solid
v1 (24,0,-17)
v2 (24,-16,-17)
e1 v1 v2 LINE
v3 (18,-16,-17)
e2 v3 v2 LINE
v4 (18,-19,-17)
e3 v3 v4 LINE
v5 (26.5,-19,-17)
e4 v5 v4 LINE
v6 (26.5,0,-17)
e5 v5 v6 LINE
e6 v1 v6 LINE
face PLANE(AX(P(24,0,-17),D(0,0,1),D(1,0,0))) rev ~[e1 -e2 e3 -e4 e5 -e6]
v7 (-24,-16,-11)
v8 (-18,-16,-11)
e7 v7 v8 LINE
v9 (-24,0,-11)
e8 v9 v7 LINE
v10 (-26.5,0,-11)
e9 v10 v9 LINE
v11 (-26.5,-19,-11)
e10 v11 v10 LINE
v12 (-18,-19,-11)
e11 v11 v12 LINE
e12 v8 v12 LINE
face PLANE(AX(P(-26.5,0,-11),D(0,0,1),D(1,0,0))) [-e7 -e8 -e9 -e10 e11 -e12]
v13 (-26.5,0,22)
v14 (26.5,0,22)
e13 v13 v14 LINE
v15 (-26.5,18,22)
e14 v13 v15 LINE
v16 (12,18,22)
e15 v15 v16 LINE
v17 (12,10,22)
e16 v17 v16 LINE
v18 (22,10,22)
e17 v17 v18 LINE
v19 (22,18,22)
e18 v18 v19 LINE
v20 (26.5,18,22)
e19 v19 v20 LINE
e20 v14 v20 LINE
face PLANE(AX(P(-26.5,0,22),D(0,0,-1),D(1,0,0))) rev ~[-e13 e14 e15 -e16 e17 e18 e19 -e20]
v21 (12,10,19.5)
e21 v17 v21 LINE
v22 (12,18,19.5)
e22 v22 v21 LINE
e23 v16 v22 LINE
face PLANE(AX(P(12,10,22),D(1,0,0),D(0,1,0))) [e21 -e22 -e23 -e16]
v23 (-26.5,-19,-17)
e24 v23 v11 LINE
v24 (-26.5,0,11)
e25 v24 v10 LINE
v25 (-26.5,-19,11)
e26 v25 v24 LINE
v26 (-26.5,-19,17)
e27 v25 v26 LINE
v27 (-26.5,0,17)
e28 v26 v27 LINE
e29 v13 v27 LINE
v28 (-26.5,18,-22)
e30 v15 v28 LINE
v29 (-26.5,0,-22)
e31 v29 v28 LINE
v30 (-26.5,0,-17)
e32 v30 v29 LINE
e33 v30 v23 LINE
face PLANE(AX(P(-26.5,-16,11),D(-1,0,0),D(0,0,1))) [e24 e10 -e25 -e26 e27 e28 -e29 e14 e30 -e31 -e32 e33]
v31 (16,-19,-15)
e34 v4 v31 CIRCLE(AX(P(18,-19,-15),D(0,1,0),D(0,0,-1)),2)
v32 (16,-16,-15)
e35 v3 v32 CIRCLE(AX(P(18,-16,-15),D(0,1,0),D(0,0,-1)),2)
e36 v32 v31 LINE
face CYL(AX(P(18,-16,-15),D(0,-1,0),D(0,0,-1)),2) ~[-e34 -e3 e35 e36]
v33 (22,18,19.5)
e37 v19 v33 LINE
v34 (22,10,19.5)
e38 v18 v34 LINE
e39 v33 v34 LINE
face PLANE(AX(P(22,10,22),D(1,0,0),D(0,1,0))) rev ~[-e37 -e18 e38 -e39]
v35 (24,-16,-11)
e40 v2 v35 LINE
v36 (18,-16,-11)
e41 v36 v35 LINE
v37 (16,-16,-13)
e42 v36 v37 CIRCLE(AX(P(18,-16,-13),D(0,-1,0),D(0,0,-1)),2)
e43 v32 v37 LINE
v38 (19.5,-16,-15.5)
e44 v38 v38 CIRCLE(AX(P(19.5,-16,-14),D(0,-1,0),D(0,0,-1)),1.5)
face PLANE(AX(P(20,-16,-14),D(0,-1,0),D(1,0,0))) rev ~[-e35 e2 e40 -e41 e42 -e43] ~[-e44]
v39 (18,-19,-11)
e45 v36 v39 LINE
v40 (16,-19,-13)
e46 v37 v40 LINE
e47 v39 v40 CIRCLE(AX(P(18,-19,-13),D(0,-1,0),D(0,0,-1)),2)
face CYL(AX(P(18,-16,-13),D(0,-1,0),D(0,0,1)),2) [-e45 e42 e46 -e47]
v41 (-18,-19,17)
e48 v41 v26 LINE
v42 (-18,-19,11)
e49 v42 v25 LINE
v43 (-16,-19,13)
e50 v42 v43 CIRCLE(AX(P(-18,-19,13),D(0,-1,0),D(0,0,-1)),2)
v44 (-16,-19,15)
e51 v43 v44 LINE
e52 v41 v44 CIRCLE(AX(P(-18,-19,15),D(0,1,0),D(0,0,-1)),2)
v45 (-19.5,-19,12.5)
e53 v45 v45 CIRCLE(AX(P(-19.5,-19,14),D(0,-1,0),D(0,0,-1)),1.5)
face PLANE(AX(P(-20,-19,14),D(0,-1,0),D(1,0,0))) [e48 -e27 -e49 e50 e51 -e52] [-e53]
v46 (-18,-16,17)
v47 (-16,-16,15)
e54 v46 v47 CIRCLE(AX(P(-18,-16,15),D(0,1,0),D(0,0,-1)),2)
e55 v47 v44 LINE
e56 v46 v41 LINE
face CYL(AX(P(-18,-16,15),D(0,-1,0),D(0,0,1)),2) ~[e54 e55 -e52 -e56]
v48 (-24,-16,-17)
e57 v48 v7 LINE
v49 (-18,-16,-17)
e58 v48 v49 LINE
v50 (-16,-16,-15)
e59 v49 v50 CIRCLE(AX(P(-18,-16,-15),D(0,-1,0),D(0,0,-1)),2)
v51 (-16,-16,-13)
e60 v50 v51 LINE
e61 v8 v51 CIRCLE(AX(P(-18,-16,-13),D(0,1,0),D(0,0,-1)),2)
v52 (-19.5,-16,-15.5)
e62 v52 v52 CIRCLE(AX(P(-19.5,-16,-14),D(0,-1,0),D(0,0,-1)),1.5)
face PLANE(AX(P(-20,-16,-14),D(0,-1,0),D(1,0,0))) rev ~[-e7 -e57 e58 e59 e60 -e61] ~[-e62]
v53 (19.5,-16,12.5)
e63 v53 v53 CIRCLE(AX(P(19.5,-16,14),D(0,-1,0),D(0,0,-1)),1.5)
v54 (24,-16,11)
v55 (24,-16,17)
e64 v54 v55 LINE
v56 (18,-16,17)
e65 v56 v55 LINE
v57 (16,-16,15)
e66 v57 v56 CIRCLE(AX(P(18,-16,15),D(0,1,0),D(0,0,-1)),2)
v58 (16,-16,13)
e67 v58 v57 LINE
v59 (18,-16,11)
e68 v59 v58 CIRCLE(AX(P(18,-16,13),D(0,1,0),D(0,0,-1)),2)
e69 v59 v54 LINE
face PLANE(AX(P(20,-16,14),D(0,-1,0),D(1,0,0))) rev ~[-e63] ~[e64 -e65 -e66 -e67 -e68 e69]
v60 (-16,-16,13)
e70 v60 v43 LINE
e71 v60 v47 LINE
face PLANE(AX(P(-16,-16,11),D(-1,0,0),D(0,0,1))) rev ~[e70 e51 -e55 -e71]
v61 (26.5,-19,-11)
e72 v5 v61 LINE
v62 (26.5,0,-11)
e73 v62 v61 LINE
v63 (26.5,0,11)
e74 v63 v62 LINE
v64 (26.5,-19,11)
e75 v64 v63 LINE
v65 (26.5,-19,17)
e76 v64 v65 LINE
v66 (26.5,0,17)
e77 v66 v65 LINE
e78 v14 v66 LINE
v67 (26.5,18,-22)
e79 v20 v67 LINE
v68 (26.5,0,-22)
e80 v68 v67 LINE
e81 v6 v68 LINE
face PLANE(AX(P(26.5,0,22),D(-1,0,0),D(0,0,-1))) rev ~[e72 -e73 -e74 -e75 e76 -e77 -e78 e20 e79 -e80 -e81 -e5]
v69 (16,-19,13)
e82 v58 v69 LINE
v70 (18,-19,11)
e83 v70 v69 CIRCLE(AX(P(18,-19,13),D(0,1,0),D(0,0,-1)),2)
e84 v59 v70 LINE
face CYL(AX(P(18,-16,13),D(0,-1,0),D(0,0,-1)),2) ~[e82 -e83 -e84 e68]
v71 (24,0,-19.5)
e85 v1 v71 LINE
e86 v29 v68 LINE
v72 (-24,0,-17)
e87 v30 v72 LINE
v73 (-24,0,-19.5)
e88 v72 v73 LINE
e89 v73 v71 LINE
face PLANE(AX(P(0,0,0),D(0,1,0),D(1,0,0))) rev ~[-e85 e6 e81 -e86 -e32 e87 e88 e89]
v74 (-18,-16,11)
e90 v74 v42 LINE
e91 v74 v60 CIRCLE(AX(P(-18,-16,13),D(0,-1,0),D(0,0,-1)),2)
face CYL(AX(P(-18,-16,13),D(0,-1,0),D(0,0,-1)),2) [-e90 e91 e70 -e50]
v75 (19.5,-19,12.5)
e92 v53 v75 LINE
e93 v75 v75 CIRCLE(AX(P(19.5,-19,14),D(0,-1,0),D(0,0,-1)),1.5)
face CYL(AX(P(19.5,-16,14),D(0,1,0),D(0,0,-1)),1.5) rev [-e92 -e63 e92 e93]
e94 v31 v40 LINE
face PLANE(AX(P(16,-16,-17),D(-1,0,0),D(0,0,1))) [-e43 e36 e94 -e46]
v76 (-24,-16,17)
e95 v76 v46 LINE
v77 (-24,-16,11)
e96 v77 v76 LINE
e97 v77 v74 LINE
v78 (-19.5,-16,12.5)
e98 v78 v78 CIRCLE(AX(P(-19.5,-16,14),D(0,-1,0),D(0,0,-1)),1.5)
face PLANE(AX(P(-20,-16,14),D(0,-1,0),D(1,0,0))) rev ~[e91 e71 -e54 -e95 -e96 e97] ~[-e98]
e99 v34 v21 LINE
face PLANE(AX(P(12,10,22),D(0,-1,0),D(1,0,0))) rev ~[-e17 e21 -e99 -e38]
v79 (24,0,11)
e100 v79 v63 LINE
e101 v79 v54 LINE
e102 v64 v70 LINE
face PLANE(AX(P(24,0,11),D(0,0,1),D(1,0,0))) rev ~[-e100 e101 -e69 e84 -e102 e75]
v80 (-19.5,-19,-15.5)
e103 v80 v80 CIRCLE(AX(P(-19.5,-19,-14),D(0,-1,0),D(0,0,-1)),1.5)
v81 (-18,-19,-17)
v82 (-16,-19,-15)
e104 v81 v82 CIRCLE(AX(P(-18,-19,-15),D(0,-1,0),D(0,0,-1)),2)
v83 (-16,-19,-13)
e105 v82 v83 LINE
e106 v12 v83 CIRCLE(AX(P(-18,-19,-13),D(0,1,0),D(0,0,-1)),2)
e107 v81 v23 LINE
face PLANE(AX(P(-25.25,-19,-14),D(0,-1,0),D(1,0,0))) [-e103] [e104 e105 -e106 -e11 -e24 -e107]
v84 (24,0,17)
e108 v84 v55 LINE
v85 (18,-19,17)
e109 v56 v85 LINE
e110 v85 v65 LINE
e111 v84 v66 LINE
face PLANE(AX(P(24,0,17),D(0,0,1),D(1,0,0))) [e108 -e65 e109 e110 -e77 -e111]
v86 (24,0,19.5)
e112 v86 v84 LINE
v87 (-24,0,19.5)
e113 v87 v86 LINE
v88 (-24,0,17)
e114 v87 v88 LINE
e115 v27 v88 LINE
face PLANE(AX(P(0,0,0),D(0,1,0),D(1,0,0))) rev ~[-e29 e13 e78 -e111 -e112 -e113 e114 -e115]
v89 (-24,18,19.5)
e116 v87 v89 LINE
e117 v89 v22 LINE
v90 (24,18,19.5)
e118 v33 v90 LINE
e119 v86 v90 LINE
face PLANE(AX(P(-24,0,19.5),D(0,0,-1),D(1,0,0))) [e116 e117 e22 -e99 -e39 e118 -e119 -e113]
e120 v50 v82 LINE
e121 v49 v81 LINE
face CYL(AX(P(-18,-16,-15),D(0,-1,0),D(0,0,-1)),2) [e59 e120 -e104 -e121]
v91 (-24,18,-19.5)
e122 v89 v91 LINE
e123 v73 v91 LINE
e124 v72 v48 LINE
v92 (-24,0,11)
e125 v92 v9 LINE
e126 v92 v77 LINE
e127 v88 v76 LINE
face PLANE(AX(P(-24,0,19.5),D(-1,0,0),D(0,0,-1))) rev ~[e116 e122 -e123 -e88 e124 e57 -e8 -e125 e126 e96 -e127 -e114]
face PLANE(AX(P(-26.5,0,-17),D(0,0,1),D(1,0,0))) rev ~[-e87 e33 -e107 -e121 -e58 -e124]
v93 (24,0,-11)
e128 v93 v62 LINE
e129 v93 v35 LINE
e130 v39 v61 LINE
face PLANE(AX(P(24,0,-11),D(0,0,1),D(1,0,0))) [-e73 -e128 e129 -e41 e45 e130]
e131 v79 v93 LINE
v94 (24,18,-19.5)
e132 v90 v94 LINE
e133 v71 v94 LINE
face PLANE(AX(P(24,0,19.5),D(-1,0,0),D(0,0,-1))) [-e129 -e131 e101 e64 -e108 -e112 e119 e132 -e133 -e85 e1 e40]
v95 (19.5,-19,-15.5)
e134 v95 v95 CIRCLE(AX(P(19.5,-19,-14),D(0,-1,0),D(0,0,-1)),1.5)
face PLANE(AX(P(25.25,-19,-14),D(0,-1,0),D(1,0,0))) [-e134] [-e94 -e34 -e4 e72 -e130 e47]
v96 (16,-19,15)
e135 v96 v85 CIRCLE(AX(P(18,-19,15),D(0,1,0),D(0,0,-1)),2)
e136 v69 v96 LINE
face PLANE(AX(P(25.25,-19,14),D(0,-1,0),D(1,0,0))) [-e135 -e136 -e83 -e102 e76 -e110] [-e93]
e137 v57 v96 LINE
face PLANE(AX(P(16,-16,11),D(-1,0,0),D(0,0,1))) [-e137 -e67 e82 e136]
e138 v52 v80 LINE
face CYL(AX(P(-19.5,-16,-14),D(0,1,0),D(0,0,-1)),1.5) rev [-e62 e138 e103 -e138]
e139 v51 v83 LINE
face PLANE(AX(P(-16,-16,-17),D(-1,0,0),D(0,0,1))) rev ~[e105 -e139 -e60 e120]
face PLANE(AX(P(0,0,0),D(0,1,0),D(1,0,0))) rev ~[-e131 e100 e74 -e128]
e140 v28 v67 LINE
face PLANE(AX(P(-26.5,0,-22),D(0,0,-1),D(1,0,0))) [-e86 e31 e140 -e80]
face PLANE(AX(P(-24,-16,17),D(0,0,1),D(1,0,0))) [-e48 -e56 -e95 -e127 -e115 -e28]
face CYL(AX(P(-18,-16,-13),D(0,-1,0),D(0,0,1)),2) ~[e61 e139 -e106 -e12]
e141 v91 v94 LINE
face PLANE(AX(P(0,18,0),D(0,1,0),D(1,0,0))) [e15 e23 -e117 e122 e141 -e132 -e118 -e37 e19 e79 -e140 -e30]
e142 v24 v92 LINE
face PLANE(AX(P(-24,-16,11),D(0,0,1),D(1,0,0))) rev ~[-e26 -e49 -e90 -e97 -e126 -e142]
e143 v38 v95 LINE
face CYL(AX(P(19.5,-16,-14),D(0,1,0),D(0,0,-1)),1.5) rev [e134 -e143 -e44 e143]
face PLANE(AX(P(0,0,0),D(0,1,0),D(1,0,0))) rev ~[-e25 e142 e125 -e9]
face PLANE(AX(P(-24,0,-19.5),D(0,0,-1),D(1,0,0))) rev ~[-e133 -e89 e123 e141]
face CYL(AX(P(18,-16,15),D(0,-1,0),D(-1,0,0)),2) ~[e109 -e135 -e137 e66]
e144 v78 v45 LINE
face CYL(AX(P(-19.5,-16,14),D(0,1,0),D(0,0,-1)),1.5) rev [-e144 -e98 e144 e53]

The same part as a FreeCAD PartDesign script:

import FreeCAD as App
import Part
import Sketcher
from FreeCAD import Vector
Q = App.Units.Quantity


def edges_at(feature, points):
    """Names of the edges that pass closest to the given points."""
    edges = feature.Shape.Edges
    near = lambda p: min(range(len(edges)), key=lambda i: edges[i].distToShape(Part.Vertex(*p))[0])
    return sorted({f"Edge{near(p) + 1}" for p in points})


def add_polygon(sketch, points):
    """Adds a closed chain of lines whose ends are joined by coincident constraints."""
    first, n = sketch.GeometryCount, len(points)
    for a, b in zip(points, points[1:] + points[:1]):
        sketch.addGeometry(Part.LineSegment(App.Vector(*a, 0), App.Vector(*b, 0)), False)
    for i in range(n):
        sketch.addConstraint(Sketcher.Constraint("Coincident", first + i, 2, first + (i + 1) % n, 1))

doc = App.newDocument("Part")
body = doc.addObject("PartDesign::Body", "Body")

sketch1 = body.newObject("Sketcher::SketchObject", "Sketch")
sketch1.AttachmentSupport = (doc.getObject("XZ_Plane"), [""])
sketch1.MapMode = "FlatFace"
add_polygon(sketch1, [(-26.5, -22), (-26.5, 22), (26.5, 22), (26.5, -22)])
add_polygon(sketch1, [(24, 19.5), (-24, 19.5), (-24, -19.5), (24, -19.5)])
sketch1.addConstraint([
    Sketcher.Constraint("Vertical", 0),
    Sketcher.Constraint("Horizontal", 1),
    Sketcher.Constraint("Vertical", 2),
    Sketcher.Constraint("Horizontal", 3),
    Sketcher.Constraint("Horizontal", 4),
    Sketcher.Constraint("Vertical", 5),
    Sketcher.Constraint("Horizontal", 6),
    Sketcher.Constraint("Vertical", 7),
    Sketcher.Constraint("Symmetric", 0, 2, 2, 2, -1, 1),
    Sketcher.Constraint("Symmetric", 4, 2, 6, 2, -1, 1),
    Sketcher.Constraint("DistanceX", 1, 1, 1, 2, Q("53 mm")),
    Sketcher.Constraint("DistanceX", 4, 2, 4, 1, Q("48 mm")),
    Sketcher.Constraint("DistanceY", 0, 1, 0, 2, Q("44 mm")),
    Sketcher.Constraint("DistanceY", 5, 2, 5, 1, Q("39 mm")),
])
pad1 = body.newObject("PartDesign::Pad", "Pad")
pad1.Profile = sketch1
pad1.Length = 18
pad1.Reversed = True

sketch2 = body.newObject("Sketcher::SketchObject", "Sketch001")
sketch2.AttachmentSupport = (doc.getObject("XZ_Plane"), [""])
sketch2.MapMode = "FlatFace"
add_polygon(sketch2, [(24, 17), (24, 11), (26.5, 11), (26.5, 17)])
add_polygon(sketch2, [(24, -11), (24, -17), (26.5, -17), (26.5, -11)])
add_polygon(sketch2, [(-26.5, -11), (-26.5, -17), (-24, -17), (-24, -11)])
add_polygon(sketch2, [(-26.5, 17), (-26.5, 11), (-24, 11), (-24, 17)])
sketch2.addConstraint([
    Sketcher.Constraint("Vertical", 0),
    Sketcher.Constraint("Horizontal", 1),
    Sketcher.Constraint("Vertical", 2),
    Sketcher.Constraint("Horizontal", 3),
    Sketcher.Constraint("Vertical", 4),
    Sketcher.Constraint("Horizontal", 5),
    Sketcher.Constraint("Vertical", 6),
    Sketcher.Constraint("Horizontal", 7),
    Sketcher.Constraint("Vertical", 8),
    Sketcher.Constraint("Horizontal", 9),
    Sketcher.Constraint("Vertical", 10),
    Sketcher.Constraint("Horizontal", 11),
    Sketcher.Constraint("Vertical", 12),
    Sketcher.Constraint("Horizontal", 13),
    Sketcher.Constraint("Vertical", 14),
    Sketcher.Constraint("Horizontal", 15),
    Sketcher.Constraint("Symmetric", 2, 2, 8, 2, -1, 1),
    Sketcher.Constraint("Symmetric", 0, 2, 10, 2, -1, 1),
    Sketcher.Constraint("Symmetric", 6, 2, 12, 2, -1, 1),
    Sketcher.Constraint("Symmetric", 4, 2, 14, 2, -1, 1),
    Sketcher.Constraint("Symmetric", 5, 2, 8, 2, -2),
    Sketcher.Constraint("Symmetric", 7, 2, 10, 2, -2),
    Sketcher.Constraint("DistanceY", 0, 2, 0, 1, Q("6 mm")),
    Sketcher.Constraint("DistanceX", 1, 1, 1, 2, Q("2.5 mm")),
    Sketcher.Constraint("DistanceX", -1, 1, 0, 2, Q("24 mm")),
    Sketcher.Constraint("DistanceY", -1, 1, 0, 2, Q("11 mm")),
])
pad2 = body.newObject("PartDesign::Pad", "Pad001")
pad2.Profile = sketch2
pad2.Length = 16

sketch3 = body.newObject("Sketcher::SketchObject", "Sketch002")
sketch3.AttachmentSupport = (doc.getObject("XZ_Plane"), [""])
sketch3.MapMode = "FlatFace"
sketch3.AttachmentOffset = App.Placement(Vector(0, 0, 16), App.Rotation())
add_polygon(sketch3, [(-16, 11), (-16, 17), (-26.5, 17), (-26.5, 11)])
sketch3.addGeometry(Part.Circle(Vector(-19.5, 14, 0), Vector(0, 0, 1), 1.5), False)
add_polygon(sketch3, [(26.5, 11), (26.5, 17), (16, 17), (16, 11)])
sketch3.addGeometry(Part.Circle(Vector(19.5, 14, 0), Vector(0, 0, 1), 1.5), False)
add_polygon(sketch3, [(16, -11), (16, -17), (26.5, -17), (26.5, -11)])
sketch3.addGeometry(Part.Circle(Vector(19.5, -14, 0), Vector(0, 0, 1), 1.5), False)
add_polygon(sketch3, [(-26.5, -11), (-26.5, -17), (-16, -17), (-16, -11)])
sketch3.addGeometry(Part.Circle(Vector(-19.5, -14, 0), Vector(0, 0, 1), 1.5), False)
sketch3.addConstraint([
    Sketcher.Constraint("Vertical", 0),
    Sketcher.Constraint("Horizontal", 1),
    Sketcher.Constraint("Vertical", 2),
    Sketcher.Constraint("Horizontal", 3),
    Sketcher.Constraint("Vertical", 5),
    Sketcher.Constraint("Horizontal", 6),
    Sketcher.Constraint("Vertical", 7),
    Sketcher.Constraint("Horizontal", 8),
    Sketcher.Constraint("Vertical", 10),
    Sketcher.Constraint("Horizontal", 11),
    Sketcher.Constraint("Vertical", 12),
    Sketcher.Constraint("Horizontal", 13),
    Sketcher.Constraint("Vertical", 15),
    Sketcher.Constraint("Horizontal", 16),
    Sketcher.Constraint("Vertical", 17),
    Sketcher.Constraint("Horizontal", 18),
    Sketcher.Constraint("Equal", 4, 9),
    Sketcher.Constraint("Equal", 9, 14),
    Sketcher.Constraint("Equal", 14, 19),
    Sketcher.Constraint("Symmetric", 4, 3, 14, 3, -1, 1),
    Sketcher.Constraint("Symmetric", 9, 3, 19, 3, -1, 1),
    Sketcher.Constraint("Symmetric", 0, 2, 10, 2, -1, 1),
    Sketcher.Constraint("Symmetric", 2, 2, 12, 2, -1, 1),
    Sketcher.Constraint("Symmetric", 5, 2, 15, 2, -1, 1),
    Sketcher.Constraint("Symmetric", 7, 2, 17, 2, -1, 1),
    Sketcher.Constraint("Symmetric", 4, 3, 9, 3, -2),
    Sketcher.Constraint("Symmetric", 1, 2, 5, 2, -2),
    Sketcher.Constraint("Symmetric", 3, 2, 7, 2, -2),
    Sketcher.Constraint("Diameter", 4, Q("3 mm")),
    Sketcher.Constraint("DistanceY", 0, 1, 0, 2, Q("6 mm")),
    Sketcher.Constraint("DistanceX", 1, 2, 1, 1, Q("10.5 mm")),
    Sketcher.Constraint("DistanceY", -1, 1, 4, 3, Q("14 mm")),
    Sketcher.Constraint("DistanceX", 0, 2, -1, 1, Q("16 mm")),
    Sketcher.Constraint("DistanceY", -1, 1, 0, 2, Q("17 mm")),
    Sketcher.Constraint("DistanceX", 4, 3, 9, 3, Q("39 mm")),
])
pad3 = body.newObject("PartDesign::Pad", "Pad002")
pad3.Profile = sketch3
pad3.Length = 3
doc.recompute()

fillet = body.newObject("PartDesign::Fillet", "Fillet")
fillet.Base = (pad3, edges_at(pad3, [
    (16, -17.5, -17),
    (16, -17.5, -11),
    (-16, -17.5, -17),
    (-16, -17.5, -11),
    (-16, -17.5, 17),
    (-16, -17.5, 11),
    (16, -17.5, 17),
    (16, -17.5, 11),
]))
fillet.Radius = 2

sketch4 = body.newObject("Sketcher::SketchObject", "Sketch003")
sketch4.AttachmentSupport = (doc.getObject("XY_Plane"), [""])
sketch4.MapMode = "FlatFace"
sketch4.AttachmentOffset = App.Placement(Vector(0, 0, 22), App.Rotation())
add_polygon(sketch4, [(12, 18), (12, 10), (22, 10), (22, 18)])
sketch4.addConstraint([
    Sketcher.Constraint("Vertical", 0),
    Sketcher.Constraint("Horizontal", 1),
    Sketcher.Constraint("Vertical", 2),
    Sketcher.Constraint("Horizontal", 3),
    Sketcher.Constraint("DistanceX", 1, 1, 1, 2, Q("10 mm")),
    Sketcher.Constraint("DistanceY", 0, 2, 0, 1, Q("8 mm")),
    Sketcher.Constraint("DistanceX", -1, 1, 0, 2, Q("12 mm")),
    Sketcher.Constraint("DistanceY", -1, 1, 0, 2, Q("10 mm")),
])
pocket1 = body.newObject("PartDesign::Pocket", "Pocket")
pocket1.Profile = sketch4
pocket1.Length = 5

doc.recompute()
